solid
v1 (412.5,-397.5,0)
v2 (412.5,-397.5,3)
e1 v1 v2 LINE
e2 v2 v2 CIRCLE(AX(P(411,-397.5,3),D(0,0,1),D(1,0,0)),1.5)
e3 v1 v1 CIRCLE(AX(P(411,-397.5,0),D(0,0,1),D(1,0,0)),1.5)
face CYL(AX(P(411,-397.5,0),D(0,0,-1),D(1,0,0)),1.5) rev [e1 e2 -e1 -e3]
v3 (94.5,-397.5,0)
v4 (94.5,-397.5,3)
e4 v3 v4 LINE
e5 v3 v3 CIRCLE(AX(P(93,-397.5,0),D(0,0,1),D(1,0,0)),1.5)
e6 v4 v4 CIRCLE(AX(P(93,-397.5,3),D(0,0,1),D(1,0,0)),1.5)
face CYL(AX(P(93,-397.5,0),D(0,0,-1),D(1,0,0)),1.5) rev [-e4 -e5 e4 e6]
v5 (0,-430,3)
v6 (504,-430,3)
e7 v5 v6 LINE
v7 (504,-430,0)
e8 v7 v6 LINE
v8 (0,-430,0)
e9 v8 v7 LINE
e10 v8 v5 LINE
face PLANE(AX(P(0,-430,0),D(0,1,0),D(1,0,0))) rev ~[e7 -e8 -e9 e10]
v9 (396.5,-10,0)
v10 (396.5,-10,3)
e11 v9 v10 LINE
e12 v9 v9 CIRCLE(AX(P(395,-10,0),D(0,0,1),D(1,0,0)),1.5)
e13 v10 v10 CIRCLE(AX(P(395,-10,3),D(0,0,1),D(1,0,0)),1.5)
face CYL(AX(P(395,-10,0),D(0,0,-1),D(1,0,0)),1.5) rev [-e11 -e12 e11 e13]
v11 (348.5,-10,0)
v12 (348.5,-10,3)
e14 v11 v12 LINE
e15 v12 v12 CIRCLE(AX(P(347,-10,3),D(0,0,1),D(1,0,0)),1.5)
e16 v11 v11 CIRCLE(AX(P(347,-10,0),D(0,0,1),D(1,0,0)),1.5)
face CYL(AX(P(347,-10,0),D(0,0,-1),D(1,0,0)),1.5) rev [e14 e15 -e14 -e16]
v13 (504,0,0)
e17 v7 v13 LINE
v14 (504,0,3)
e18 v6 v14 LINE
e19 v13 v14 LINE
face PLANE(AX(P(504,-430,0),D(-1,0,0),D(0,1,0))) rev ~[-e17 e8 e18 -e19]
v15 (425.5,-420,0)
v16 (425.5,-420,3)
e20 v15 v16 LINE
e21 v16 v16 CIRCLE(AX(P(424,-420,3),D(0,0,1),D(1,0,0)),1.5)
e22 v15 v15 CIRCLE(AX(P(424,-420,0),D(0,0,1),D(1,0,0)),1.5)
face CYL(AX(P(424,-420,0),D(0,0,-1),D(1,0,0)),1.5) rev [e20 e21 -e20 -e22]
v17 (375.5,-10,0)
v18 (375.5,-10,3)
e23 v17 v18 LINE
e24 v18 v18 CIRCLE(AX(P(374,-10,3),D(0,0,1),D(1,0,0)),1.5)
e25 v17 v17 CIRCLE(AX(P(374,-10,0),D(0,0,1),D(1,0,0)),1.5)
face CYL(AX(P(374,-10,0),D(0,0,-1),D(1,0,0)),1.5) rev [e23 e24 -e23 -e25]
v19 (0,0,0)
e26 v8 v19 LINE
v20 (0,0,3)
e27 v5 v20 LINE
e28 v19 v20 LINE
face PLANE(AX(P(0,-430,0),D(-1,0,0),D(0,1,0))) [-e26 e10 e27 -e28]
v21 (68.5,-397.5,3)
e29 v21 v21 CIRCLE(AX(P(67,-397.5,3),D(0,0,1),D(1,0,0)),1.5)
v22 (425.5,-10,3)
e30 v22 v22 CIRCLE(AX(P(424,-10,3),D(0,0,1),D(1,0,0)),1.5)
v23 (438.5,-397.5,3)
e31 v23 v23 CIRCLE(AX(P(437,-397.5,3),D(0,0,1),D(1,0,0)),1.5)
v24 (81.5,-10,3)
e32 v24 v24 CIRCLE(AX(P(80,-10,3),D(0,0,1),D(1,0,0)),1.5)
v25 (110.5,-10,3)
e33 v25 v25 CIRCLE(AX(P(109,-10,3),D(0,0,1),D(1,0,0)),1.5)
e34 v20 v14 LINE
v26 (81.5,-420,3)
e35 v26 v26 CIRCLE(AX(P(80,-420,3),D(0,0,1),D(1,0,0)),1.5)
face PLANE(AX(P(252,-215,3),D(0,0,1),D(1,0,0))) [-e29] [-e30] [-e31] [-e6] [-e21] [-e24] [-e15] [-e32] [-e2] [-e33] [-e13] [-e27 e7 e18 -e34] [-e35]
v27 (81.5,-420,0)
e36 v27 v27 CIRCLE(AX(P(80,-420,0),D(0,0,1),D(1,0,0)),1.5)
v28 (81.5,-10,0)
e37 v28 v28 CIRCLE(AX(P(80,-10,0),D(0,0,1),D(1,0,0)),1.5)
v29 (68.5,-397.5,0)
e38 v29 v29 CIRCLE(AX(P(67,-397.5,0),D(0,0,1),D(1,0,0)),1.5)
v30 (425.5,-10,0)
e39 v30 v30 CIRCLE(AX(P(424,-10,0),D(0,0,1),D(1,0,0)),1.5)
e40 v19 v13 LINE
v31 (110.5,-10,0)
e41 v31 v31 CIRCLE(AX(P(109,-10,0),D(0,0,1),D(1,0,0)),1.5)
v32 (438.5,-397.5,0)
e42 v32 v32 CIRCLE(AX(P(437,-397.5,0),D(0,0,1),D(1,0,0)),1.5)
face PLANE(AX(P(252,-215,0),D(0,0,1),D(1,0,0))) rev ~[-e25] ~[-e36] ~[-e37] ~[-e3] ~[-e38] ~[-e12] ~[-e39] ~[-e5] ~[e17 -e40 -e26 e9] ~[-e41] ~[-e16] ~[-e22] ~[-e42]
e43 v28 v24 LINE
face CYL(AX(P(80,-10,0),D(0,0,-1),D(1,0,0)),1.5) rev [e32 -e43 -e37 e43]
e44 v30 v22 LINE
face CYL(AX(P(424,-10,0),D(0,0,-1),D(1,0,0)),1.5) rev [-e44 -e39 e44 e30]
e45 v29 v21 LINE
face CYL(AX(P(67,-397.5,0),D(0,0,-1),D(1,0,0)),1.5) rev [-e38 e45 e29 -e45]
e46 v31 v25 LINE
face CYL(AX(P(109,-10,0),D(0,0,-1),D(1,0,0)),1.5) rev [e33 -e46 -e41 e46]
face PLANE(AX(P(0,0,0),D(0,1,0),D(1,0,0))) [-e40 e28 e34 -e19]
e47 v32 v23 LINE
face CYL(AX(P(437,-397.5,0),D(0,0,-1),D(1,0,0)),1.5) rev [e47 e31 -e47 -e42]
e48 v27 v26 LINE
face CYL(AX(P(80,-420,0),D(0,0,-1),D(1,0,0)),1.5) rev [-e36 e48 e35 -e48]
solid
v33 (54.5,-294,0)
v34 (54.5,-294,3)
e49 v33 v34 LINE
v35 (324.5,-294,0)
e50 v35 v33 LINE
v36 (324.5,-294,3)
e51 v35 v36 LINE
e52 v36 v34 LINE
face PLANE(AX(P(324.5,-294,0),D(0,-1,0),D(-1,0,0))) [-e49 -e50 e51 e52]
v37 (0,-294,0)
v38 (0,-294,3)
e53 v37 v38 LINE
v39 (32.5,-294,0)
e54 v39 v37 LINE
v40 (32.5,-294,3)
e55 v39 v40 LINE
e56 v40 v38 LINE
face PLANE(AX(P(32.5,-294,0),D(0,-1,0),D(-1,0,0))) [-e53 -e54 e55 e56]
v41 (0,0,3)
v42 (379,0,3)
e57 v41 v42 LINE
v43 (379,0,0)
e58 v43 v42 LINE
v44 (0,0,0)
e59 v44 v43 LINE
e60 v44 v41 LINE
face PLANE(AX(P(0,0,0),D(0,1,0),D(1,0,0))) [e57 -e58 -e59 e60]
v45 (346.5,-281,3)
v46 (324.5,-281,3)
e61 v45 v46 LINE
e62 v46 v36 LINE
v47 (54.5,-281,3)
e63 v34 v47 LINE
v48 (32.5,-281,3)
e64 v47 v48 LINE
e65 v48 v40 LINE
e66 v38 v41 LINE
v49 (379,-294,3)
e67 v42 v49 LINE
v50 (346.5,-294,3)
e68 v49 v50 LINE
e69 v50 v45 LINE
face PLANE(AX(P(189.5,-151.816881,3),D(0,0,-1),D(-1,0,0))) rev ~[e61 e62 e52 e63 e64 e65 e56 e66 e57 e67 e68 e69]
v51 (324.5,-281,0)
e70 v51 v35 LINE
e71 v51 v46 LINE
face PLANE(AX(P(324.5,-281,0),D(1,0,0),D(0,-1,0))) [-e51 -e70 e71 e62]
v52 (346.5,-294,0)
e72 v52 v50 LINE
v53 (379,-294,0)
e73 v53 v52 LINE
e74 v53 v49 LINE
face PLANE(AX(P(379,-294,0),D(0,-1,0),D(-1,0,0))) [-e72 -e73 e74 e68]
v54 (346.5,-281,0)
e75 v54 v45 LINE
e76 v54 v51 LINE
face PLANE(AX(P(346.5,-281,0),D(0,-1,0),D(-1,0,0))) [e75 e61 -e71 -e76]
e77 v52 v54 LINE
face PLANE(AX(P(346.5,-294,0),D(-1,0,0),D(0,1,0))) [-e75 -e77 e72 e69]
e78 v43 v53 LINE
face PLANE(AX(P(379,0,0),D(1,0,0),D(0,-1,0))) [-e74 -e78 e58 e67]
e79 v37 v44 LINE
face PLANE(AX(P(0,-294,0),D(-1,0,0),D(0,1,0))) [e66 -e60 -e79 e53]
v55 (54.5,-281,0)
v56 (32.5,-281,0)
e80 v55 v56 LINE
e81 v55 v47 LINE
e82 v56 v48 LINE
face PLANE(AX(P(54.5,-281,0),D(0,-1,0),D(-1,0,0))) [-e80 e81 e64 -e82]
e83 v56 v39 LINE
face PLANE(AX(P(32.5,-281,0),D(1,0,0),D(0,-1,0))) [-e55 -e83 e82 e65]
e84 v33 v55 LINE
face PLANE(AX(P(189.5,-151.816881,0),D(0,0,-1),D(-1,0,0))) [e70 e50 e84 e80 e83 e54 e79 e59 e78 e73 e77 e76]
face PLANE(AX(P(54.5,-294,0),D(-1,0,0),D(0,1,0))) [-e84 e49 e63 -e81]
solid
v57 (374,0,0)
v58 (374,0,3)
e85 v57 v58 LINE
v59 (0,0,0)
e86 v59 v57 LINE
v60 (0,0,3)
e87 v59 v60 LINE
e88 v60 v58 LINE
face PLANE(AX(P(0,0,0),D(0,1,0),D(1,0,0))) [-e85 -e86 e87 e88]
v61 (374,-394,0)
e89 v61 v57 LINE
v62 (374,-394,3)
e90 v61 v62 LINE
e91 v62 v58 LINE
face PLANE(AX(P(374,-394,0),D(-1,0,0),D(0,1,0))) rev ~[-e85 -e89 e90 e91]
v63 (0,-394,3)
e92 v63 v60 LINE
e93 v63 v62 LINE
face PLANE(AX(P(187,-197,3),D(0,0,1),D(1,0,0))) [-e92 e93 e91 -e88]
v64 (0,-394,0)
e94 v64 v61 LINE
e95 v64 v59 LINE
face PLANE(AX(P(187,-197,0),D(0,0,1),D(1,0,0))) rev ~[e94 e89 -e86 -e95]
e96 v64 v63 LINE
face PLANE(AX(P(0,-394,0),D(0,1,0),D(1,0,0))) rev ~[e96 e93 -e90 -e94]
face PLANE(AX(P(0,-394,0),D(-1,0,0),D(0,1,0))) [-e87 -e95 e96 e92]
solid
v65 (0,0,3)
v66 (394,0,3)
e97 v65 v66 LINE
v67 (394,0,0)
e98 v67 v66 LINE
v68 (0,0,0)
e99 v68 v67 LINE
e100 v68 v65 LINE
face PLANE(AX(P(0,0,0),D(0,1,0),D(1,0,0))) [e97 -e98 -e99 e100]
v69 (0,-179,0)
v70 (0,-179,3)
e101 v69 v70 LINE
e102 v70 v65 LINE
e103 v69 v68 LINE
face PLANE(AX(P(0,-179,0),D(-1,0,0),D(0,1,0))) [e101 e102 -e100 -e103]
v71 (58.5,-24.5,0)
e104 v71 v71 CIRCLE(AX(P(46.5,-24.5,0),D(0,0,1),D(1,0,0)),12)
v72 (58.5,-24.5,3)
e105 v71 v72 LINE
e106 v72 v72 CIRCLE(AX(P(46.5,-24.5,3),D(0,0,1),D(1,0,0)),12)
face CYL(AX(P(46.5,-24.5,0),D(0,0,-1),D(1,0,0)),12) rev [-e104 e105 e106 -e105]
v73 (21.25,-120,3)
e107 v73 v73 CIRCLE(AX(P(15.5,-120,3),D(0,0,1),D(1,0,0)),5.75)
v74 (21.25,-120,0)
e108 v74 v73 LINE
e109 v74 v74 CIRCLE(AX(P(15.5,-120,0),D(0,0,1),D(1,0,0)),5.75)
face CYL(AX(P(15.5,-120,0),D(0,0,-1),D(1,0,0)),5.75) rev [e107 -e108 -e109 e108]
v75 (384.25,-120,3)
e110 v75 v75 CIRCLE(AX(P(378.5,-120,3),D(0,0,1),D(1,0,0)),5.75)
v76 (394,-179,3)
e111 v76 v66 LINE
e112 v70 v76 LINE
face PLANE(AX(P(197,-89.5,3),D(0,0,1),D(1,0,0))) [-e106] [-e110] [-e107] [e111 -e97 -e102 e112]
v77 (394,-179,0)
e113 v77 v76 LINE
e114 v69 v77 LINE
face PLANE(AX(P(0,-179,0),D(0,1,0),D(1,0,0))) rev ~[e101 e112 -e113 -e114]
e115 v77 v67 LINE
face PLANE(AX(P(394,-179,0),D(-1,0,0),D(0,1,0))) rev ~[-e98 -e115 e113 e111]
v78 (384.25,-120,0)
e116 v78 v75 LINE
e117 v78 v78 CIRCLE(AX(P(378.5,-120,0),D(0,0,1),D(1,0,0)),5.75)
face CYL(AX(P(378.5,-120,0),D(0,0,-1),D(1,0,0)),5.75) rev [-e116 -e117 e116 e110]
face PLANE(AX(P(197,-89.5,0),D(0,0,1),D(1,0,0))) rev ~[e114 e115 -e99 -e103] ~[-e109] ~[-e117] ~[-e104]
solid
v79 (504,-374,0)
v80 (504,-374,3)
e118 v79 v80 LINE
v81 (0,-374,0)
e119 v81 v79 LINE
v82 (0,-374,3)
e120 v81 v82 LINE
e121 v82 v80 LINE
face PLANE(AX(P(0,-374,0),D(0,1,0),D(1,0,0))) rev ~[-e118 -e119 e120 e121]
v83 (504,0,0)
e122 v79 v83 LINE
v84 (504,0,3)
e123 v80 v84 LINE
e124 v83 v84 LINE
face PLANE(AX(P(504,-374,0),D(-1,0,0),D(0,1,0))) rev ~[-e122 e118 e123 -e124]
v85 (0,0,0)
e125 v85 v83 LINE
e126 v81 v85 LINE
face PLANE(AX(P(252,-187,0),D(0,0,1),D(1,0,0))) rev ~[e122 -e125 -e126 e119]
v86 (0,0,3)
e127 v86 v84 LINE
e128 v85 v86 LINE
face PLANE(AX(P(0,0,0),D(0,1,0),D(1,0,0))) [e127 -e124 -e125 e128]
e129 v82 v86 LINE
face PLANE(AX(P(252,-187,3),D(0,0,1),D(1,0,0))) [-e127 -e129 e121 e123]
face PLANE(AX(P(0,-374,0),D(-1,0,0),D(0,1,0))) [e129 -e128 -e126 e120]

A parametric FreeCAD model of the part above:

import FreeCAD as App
import Part
import Sketcher
Q = App.Units.Quantity


def add_polygon(sketch, points):
    """Adds a closed chain of lines whose ends are joined by coincident constraints."""
    first, n = sketch.GeometryCount, len(points)
    for a, b in zip(points, points[1:] + points[:1]):
        sketch.addGeometry(Part.LineSegment(App.Vector(*a, 0), App.Vector(*b, 0)), False)
    for i in range(n):
        sketch.addConstraint(Sketcher.Constraint("Coincident", first + i, 2, first + (i + 1) % n, 1))

doc = App.newDocument("Part")
body = doc.addObject("PartDesign::Body", "Body")

# Sketch on XY plane
sketch1 = body.newObject("Sketcher::SketchObject", "Sketch")
sketch1.AttachmentSupport = (doc.getObject("XY_Plane"), [""])
sketch1.MapMode = "FlatFace"
add_polygon(sketch1, [(0, 0), (0, -179), (394, -179), (394, 0)])  # lines 0-3
sketch1.addGeometry(Part.Circle(App.Vector(15.5, -120, 0), App.Vector(0, 0, 1), 5.75), False)  # 4
sketch1.addGeometry(Part.Circle(App.Vector(378.5, -120, 0), App.Vector(0, 0, 1), 5.75), False)  # 5
sketch1.addGeometry(Part.Circle(App.Vector(46.5, -24.5, 0), App.Vector(0, 0, 1), 12), False)  # 6
sketch1.addConstraint(Sketcher.Constraint("Vertical", 0))
sketch1.addConstraint(Sketcher.Constraint("Horizontal", 1))
sketch1.addConstraint(Sketcher.Constraint("Vertical", 2))
sketch1.addConstraint(Sketcher.Constraint("Horizontal", 3))
sketch1.addConstraint(Sketcher.Constraint("Coincident", 3, 2, -1, 1))
sketch1.addConstraint(Sketcher.Constraint("Equal", 4, 5))
sketch1.addConstraint(Sketcher.Constraint("Horizontal", 4, 3, 5, 3))
sketch1.addConstraint(Sketcher.Constraint("Diameter", 6, Q("24 mm")))
sketch1.addConstraint(Sketcher.Constraint("Diameter", 4, Q("11.5 mm")))
sketch1.addConstraint(Sketcher.Constraint("DistanceX", 1, 1, 1, 2, Q("394 mm")))
sketch1.addConstraint(Sketcher.Constraint("DistanceY", 0, 2, 0, 1, Q("179 mm")))
sketch1.addConstraint(Sketcher.Constraint("DistanceY", 4, 3, -1, 1, Q("120 mm")))
sketch1.addConstraint(Sketcher.Constraint("DistanceX", 4, 3, 5, 3, Q("363 mm")))
sketch1.addConstraint(Sketcher.Constraint("DistanceX", 4, 3, 6, 3, Q("31 mm")))
sketch1.addConstraint(Sketcher.Constraint("DistanceX", -1, 1, 4, 3, Q("15.5 mm")))
sketch1.addConstraint(Sketcher.Constraint("DistanceY", 6, 3, -1, 1, Q("24.5 mm")))
pad1 = body.newObject("PartDesign::Pad", "Pad")
pad1.Profile = sketch1
pad1.Length = 3
body2 = doc.addObject("PartDesign::Body", "Body001")

# Sketch on XY plane
sketch2 = body2.newObject("Sketcher::SketchObject", "Sketch001")
sketch2.AttachmentSupport = (doc.getObject("XY_Plane001"), [""])
sketch2.MapMode = "FlatFace"
add_polygon(sketch2, [(379, 0), (0, 0), (0, -294), (32.5, -294), (32.5, -281), (54.5, -281), (54.5, -294), (324.5, -294), (324.5, -281), (346.5, -281), (346.5, -294), (379, -294)])  # lines 0-11
sketch2.addConstraint(Sketcher.Constraint("Horizontal", 0))
sketch2.addConstraint(Sketcher.Constraint("Vertical", 1))
sketch2.addConstraint(Sketcher.Constraint("Horizontal", 2))
sketch2.addConstraint(Sketcher.Constraint("Vertical", 3))
sketch2.addConstraint(Sketcher.Constraint("Horizontal", 4))
sketch2.addConstraint(Sketcher.Constraint("Vertical", 5))
sketch2.addConstraint(Sketcher.Constraint("Horizontal", 6))
sketch2.addConstraint(Sketcher.Constraint("Vertical", 7))
sketch2.addConstraint(Sketcher.Constraint("Horizontal", 8))
sketch2.addConstraint(Sketcher.Constraint("Vertical", 9))
sketch2.addConstraint(Sketcher.Constraint("Horizontal", 10))
sketch2.addConstraint(Sketcher.Constraint("Vertical", 11))
sketch2.addConstraint(Sketcher.Constraint("Coincident", 0, 2, -1, 1))
sketch2.addConstraint(Sketcher.Constraint("Horizontal", 2, 2, 5, 2))
sketch2.addConstraint(Sketcher.Constraint("Horizontal", 4, 2, 7, 2))
sketch2.addConstraint(Sketcher.Constraint("Horizontal", 6, 2, 9, 2))
sketch2.addConstraint(Sketcher.Constraint("Equal", 4, 8))
sketch2.addConstraint(Sketcher.Constraint("Equal", 2, 10))
sketch2.addConstraint(Sketcher.Constraint("DistanceX", 0, 2, 0, 1, Q("379 mm")))
sketch2.addConstraint(Sketcher.Constraint("DistanceX", 4, 1, 4, 2, Q("22 mm")))
sketch2.addConstraint(Sketcher.Constraint("DistanceX", 6, 1, 6, 2, Q("270 mm")))
sketch2.addConstraint(Sketcher.Constraint("DistanceY", 1, 2, 1, 1, Q("294 mm")))
sketch2.addConstraint(Sketcher.Constraint("DistanceY", 3, 1, 3, 2, Q("13 mm")))
pad2 = body2.newObject("PartDesign::Pad", "Pad001")
pad2.Profile = sketch2
pad2.Length = 3
body3 = doc.addObject("PartDesign::Body", "Body002")

# Sketch on XY plane
sketch3 = body3.newObject("Sketcher::SketchObject", "Sketch002")
sketch3.AttachmentSupport = (doc.getObject("XY_Plane002"), [""])
sketch3.MapMode = "FlatFace"
add_polygon(sketch3, [(0, 0), (0, -394), (374, -394), (374, 0)])  # lines 0-3
sketch3.addConstraint(Sketcher.Constraint("Vertical", 0))
sketch3.addConstraint(Sketcher.Constraint("Horizontal", 1))
sketch3.addConstraint(Sketcher.Constraint("Vertical", 2))
sketch3.addConstraint(Sketcher.Constraint("Horizontal", 3))
sketch3.addConstraint(Sketcher.Constraint("Coincident", 3, 2, -1, 1))
sketch3.addConstraint(Sketcher.Constraint("DistanceX", 1, 1, 1, 2, Q("374 mm")))
sketch3.addConstraint(Sketcher.Constraint("DistanceY", 0, 2, 0, 1, Q("394 mm")))
pad3 = body3.newObject("PartDesign::Pad", "Pad002")
pad3.Profile = sketch3
pad3.Length = 3
body4 = doc.addObject("PartDesign::Body", "Body003")

# Sketch on XY plane
sketch4 = body4.newObject("Sketcher::SketchObject", "Sketch003")
sketch4.AttachmentSupport = (doc.getObject("XY_Plane003"), [""])
sketch4.MapMode = "FlatFace"
add_polygon(sketch4, [(0, 0), (0, -374), (504, -374), (504, 0)])  # lines 0-3
sketch4.addConstraint(Sketcher.Constraint("Vertical", 0))
sketch4.addConstraint(Sketcher.Constraint("Horizontal", 1))
sketch4.addConstraint(Sketcher.Constraint("Vertical", 2))
sketch4.addConstraint(Sketcher.Constraint("Horizontal", 3))
sketch4.addConstraint(Sketcher.Constraint("Coincident", 3, 2, -1, 1))
sketch4.addConstraint(Sketcher.Constraint("DistanceX", 1, 1, 1, 2, Q("504 mm")))
sketch4.addConstraint(Sketcher.Constraint("DistanceY", 0, 2, 0, 1, Q("374 mm")))
pad4 = body4.newObject("PartDesign::Pad", "Pad003")
pad4.Profile = sketch4
pad4.Length = 3
body5 = doc.addObject("PartDesign::Body", "Body004")

# Sketch on XY plane
sketch5 = body5.newObject("Sketcher::SketchObject", "Sketch004")
sketch5.AttachmentSupport = (doc.getObject("XY_Plane004"), [""])
sketch5.MapMode = "FlatFace"
add_polygon(sketch5, [(0, 0), (0, -430), (504, -430), (504, 0)])  # lines 0-3
sketch5.addGeometry(Part.Circle(App.Vector(80, -420, 0), App.Vector(0, 0, 1), 1.5), False)  # 4
sketch5.addGeometry(Part.Circle(App.Vector(67, -397.5, 0), App.Vector(0, 0, 1), 1.5), False)  # 5
sketch5.addGeometry(Part.Circle(App.Vector(93, -397.5, 0), App.Vector(0, 0, 1), 1.5), False)  # 6
sketch5.addGeometry(Part.Circle(App.Vector(411, -397.5, 0), App.Vector(0, 0, 1), 1.5), False)  # 7
sketch5.addGeometry(Part.Circle(App.Vector(424, -420, 0), App.Vector(0, 0, 1), 1.5), False)  # 8
sketch5.addGeometry(Part.Circle(App.Vector(437, -397.5, 0), App.Vector(0, 0, 1), 1.5), False)  # 9
sketch5.addGeometry(Part.Circle(App.Vector(80, -10, 0), App.Vector(0, 0, 1), 1.5), False)  # 10
sketch5.addGeometry(Part.Circle(App.Vector(109, -10, 0), App.Vector(0, 0, 1), 1.5), False)  # 11
sketch5.addGeometry(Part.Circle(App.Vector(347, -10, 0), App.Vector(0, 0, 1), 1.5), False)  # 12
sketch5.addGeometry(Part.Circle(App.Vector(374, -10, 0), App.Vector(0, 0, 1), 1.5), False)  # 13
sketch5.addGeometry(Part.Circle(App.Vector(395, -10, 0), App.Vector(0, 0, 1), 1.5), False)  # 14
sketch5.addGeometry(Part.Circle(App.Vector(424, -10, 0), App.Vector(0, 0, 1), 1.5), False)  # 15
sketch5.addConstraint(Sketcher.Constraint("Vertical", 0))
sketch5.addConstraint(Sketcher.Constraint("Horizontal", 1))
sketch5.addConstraint(Sketcher.Constraint("Vertical", 2))
sketch5.addConstraint(Sketcher.Constraint("Horizontal", 3))
sketch5.addConstraint(Sketcher.Constraint("Coincident", 3, 2, -1, 1))
sketch5.addConstraint(Sketcher.Constraint("Equal", 4, 5))
sketch5.addConstraint(Sketcher.Constraint("Equal", 5, 6))
sketch5.addConstraint(Sketcher.Constraint("Equal", 6, 7))
sketch5.addConstraint(Sketcher.Constraint("Equal", 7, 8))
sketch5.addConstraint(Sketcher.Constraint("Equal", 8, 9))
sketch5.addConstraint(Sketcher.Constraint("Equal", 9, 10))
sketch5.addConstraint(Sketcher.Constraint("Equal", 10, 11))
sketch5.addConstraint(Sketcher.Constraint("Equal", 11, 12))
sketch5.addConstraint(Sketcher.Constraint("Equal", 12, 13))
sketch5.addConstraint(Sketcher.Constraint("Equal", 13, 14))
sketch5.addConstraint(Sketcher.Constraint("Equal", 14, 15))
sketch5.addConstraint(Sketcher.Constraint("Horizontal", 5, 3, 6, 3))
sketch5.addConstraint(Sketcher.Constraint("Horizontal", 6, 3, 7, 3))
sketch5.addConstraint(Sketcher.Constraint("Horizontal", 4, 3, 8, 3))
sketch5.addConstraint(Sketcher.Constraint("Horizontal", 7, 3, 9, 3))
sketch5.addConstraint(Sketcher.Constraint("Horizontal", 10, 3, 11, 3))
sketch5.addConstraint(Sketcher.Constraint("Horizontal", 11, 3, 12, 3))
sketch5.addConstraint(Sketcher.Constraint("Horizontal", 12, 3, 13, 3))
sketch5.addConstraint(Sketcher.Constraint("Horizontal", 13, 3, 14, 3))
sketch5.addConstraint(Sketcher.Constraint("Horizontal", 14, 3, 15, 3))
sketch5.addConstraint(Sketcher.Constraint("Vertical", 4, 3, 10, 3))
sketch5.addConstraint(Sketcher.Constraint("Vertical", 8, 3, 15, 3))
sketch5.addConstraint(Sketcher.Constraint("Diameter", 4, Q("3 mm")))
sketch5.addConstraint(Sketcher.Constraint("DistanceX", 1, 1, 1, 2, Q("504 mm")))
sketch5.addConstraint(Sketcher.Constraint("DistanceY", 0, 2, 0, 1, Q("430 mm")))
sketch5.addConstraint(Sketcher.Constraint("DistanceX", -1, 1, 4, 3, Q("80 mm")))
sketch5.addConstraint(Sketcher.Constraint("DistanceY", 4, 3, -1, 1, Q("420 mm")))
sketch5.addConstraint(Sketcher.Constraint("DistanceX", -1, 1, 5, 3, Q("67 mm")))
sketch5.addConstraint(Sketcher.Constraint("DistanceX", -1, 1, 6, 3, Q("93 mm")))
sketch5.addConstraint(Sketcher.Constraint("DistanceX", -1, 1, 7, 3, Q("411 mm")))
sketch5.addConstraint(Sketcher.Constraint("DistanceX", -1, 1, 8, 3, Q("424 mm")))
sketch5.addConstraint(Sketcher.Constraint("DistanceX", -1, 1, 9, 3, Q("437 mm")))
sketch5.addConstraint(Sketcher.Constraint("DistanceY", 10, 3, -1, 1, Q("10 mm")))
sketch5.addConstraint(Sketcher.Constraint("DistanceX", -1, 1, 11, 3, Q("109 mm")))
sketch5.addConstraint(Sketcher.Constraint("DistanceX", -1, 1, 12, 3, Q("347 mm")))
sketch5.addConstraint(Sketcher.Constraint("DistanceX", -1, 1, 13, 3, Q("374 mm")))
sketch5.addConstraint(Sketcher.Constraint("DistanceX", -1, 1, 14, 3, Q("395 mm")))
sketch5.addConstraint(Sketcher.Constraint("DistanceY", 5, 3, -1, 1, Q("397.5 mm")))
pad5 = body5.newObject("PartDesign::Pad", "Pad004")
pad5.Profile = sketch5
pad5.Length = 3

doc.recompute()
